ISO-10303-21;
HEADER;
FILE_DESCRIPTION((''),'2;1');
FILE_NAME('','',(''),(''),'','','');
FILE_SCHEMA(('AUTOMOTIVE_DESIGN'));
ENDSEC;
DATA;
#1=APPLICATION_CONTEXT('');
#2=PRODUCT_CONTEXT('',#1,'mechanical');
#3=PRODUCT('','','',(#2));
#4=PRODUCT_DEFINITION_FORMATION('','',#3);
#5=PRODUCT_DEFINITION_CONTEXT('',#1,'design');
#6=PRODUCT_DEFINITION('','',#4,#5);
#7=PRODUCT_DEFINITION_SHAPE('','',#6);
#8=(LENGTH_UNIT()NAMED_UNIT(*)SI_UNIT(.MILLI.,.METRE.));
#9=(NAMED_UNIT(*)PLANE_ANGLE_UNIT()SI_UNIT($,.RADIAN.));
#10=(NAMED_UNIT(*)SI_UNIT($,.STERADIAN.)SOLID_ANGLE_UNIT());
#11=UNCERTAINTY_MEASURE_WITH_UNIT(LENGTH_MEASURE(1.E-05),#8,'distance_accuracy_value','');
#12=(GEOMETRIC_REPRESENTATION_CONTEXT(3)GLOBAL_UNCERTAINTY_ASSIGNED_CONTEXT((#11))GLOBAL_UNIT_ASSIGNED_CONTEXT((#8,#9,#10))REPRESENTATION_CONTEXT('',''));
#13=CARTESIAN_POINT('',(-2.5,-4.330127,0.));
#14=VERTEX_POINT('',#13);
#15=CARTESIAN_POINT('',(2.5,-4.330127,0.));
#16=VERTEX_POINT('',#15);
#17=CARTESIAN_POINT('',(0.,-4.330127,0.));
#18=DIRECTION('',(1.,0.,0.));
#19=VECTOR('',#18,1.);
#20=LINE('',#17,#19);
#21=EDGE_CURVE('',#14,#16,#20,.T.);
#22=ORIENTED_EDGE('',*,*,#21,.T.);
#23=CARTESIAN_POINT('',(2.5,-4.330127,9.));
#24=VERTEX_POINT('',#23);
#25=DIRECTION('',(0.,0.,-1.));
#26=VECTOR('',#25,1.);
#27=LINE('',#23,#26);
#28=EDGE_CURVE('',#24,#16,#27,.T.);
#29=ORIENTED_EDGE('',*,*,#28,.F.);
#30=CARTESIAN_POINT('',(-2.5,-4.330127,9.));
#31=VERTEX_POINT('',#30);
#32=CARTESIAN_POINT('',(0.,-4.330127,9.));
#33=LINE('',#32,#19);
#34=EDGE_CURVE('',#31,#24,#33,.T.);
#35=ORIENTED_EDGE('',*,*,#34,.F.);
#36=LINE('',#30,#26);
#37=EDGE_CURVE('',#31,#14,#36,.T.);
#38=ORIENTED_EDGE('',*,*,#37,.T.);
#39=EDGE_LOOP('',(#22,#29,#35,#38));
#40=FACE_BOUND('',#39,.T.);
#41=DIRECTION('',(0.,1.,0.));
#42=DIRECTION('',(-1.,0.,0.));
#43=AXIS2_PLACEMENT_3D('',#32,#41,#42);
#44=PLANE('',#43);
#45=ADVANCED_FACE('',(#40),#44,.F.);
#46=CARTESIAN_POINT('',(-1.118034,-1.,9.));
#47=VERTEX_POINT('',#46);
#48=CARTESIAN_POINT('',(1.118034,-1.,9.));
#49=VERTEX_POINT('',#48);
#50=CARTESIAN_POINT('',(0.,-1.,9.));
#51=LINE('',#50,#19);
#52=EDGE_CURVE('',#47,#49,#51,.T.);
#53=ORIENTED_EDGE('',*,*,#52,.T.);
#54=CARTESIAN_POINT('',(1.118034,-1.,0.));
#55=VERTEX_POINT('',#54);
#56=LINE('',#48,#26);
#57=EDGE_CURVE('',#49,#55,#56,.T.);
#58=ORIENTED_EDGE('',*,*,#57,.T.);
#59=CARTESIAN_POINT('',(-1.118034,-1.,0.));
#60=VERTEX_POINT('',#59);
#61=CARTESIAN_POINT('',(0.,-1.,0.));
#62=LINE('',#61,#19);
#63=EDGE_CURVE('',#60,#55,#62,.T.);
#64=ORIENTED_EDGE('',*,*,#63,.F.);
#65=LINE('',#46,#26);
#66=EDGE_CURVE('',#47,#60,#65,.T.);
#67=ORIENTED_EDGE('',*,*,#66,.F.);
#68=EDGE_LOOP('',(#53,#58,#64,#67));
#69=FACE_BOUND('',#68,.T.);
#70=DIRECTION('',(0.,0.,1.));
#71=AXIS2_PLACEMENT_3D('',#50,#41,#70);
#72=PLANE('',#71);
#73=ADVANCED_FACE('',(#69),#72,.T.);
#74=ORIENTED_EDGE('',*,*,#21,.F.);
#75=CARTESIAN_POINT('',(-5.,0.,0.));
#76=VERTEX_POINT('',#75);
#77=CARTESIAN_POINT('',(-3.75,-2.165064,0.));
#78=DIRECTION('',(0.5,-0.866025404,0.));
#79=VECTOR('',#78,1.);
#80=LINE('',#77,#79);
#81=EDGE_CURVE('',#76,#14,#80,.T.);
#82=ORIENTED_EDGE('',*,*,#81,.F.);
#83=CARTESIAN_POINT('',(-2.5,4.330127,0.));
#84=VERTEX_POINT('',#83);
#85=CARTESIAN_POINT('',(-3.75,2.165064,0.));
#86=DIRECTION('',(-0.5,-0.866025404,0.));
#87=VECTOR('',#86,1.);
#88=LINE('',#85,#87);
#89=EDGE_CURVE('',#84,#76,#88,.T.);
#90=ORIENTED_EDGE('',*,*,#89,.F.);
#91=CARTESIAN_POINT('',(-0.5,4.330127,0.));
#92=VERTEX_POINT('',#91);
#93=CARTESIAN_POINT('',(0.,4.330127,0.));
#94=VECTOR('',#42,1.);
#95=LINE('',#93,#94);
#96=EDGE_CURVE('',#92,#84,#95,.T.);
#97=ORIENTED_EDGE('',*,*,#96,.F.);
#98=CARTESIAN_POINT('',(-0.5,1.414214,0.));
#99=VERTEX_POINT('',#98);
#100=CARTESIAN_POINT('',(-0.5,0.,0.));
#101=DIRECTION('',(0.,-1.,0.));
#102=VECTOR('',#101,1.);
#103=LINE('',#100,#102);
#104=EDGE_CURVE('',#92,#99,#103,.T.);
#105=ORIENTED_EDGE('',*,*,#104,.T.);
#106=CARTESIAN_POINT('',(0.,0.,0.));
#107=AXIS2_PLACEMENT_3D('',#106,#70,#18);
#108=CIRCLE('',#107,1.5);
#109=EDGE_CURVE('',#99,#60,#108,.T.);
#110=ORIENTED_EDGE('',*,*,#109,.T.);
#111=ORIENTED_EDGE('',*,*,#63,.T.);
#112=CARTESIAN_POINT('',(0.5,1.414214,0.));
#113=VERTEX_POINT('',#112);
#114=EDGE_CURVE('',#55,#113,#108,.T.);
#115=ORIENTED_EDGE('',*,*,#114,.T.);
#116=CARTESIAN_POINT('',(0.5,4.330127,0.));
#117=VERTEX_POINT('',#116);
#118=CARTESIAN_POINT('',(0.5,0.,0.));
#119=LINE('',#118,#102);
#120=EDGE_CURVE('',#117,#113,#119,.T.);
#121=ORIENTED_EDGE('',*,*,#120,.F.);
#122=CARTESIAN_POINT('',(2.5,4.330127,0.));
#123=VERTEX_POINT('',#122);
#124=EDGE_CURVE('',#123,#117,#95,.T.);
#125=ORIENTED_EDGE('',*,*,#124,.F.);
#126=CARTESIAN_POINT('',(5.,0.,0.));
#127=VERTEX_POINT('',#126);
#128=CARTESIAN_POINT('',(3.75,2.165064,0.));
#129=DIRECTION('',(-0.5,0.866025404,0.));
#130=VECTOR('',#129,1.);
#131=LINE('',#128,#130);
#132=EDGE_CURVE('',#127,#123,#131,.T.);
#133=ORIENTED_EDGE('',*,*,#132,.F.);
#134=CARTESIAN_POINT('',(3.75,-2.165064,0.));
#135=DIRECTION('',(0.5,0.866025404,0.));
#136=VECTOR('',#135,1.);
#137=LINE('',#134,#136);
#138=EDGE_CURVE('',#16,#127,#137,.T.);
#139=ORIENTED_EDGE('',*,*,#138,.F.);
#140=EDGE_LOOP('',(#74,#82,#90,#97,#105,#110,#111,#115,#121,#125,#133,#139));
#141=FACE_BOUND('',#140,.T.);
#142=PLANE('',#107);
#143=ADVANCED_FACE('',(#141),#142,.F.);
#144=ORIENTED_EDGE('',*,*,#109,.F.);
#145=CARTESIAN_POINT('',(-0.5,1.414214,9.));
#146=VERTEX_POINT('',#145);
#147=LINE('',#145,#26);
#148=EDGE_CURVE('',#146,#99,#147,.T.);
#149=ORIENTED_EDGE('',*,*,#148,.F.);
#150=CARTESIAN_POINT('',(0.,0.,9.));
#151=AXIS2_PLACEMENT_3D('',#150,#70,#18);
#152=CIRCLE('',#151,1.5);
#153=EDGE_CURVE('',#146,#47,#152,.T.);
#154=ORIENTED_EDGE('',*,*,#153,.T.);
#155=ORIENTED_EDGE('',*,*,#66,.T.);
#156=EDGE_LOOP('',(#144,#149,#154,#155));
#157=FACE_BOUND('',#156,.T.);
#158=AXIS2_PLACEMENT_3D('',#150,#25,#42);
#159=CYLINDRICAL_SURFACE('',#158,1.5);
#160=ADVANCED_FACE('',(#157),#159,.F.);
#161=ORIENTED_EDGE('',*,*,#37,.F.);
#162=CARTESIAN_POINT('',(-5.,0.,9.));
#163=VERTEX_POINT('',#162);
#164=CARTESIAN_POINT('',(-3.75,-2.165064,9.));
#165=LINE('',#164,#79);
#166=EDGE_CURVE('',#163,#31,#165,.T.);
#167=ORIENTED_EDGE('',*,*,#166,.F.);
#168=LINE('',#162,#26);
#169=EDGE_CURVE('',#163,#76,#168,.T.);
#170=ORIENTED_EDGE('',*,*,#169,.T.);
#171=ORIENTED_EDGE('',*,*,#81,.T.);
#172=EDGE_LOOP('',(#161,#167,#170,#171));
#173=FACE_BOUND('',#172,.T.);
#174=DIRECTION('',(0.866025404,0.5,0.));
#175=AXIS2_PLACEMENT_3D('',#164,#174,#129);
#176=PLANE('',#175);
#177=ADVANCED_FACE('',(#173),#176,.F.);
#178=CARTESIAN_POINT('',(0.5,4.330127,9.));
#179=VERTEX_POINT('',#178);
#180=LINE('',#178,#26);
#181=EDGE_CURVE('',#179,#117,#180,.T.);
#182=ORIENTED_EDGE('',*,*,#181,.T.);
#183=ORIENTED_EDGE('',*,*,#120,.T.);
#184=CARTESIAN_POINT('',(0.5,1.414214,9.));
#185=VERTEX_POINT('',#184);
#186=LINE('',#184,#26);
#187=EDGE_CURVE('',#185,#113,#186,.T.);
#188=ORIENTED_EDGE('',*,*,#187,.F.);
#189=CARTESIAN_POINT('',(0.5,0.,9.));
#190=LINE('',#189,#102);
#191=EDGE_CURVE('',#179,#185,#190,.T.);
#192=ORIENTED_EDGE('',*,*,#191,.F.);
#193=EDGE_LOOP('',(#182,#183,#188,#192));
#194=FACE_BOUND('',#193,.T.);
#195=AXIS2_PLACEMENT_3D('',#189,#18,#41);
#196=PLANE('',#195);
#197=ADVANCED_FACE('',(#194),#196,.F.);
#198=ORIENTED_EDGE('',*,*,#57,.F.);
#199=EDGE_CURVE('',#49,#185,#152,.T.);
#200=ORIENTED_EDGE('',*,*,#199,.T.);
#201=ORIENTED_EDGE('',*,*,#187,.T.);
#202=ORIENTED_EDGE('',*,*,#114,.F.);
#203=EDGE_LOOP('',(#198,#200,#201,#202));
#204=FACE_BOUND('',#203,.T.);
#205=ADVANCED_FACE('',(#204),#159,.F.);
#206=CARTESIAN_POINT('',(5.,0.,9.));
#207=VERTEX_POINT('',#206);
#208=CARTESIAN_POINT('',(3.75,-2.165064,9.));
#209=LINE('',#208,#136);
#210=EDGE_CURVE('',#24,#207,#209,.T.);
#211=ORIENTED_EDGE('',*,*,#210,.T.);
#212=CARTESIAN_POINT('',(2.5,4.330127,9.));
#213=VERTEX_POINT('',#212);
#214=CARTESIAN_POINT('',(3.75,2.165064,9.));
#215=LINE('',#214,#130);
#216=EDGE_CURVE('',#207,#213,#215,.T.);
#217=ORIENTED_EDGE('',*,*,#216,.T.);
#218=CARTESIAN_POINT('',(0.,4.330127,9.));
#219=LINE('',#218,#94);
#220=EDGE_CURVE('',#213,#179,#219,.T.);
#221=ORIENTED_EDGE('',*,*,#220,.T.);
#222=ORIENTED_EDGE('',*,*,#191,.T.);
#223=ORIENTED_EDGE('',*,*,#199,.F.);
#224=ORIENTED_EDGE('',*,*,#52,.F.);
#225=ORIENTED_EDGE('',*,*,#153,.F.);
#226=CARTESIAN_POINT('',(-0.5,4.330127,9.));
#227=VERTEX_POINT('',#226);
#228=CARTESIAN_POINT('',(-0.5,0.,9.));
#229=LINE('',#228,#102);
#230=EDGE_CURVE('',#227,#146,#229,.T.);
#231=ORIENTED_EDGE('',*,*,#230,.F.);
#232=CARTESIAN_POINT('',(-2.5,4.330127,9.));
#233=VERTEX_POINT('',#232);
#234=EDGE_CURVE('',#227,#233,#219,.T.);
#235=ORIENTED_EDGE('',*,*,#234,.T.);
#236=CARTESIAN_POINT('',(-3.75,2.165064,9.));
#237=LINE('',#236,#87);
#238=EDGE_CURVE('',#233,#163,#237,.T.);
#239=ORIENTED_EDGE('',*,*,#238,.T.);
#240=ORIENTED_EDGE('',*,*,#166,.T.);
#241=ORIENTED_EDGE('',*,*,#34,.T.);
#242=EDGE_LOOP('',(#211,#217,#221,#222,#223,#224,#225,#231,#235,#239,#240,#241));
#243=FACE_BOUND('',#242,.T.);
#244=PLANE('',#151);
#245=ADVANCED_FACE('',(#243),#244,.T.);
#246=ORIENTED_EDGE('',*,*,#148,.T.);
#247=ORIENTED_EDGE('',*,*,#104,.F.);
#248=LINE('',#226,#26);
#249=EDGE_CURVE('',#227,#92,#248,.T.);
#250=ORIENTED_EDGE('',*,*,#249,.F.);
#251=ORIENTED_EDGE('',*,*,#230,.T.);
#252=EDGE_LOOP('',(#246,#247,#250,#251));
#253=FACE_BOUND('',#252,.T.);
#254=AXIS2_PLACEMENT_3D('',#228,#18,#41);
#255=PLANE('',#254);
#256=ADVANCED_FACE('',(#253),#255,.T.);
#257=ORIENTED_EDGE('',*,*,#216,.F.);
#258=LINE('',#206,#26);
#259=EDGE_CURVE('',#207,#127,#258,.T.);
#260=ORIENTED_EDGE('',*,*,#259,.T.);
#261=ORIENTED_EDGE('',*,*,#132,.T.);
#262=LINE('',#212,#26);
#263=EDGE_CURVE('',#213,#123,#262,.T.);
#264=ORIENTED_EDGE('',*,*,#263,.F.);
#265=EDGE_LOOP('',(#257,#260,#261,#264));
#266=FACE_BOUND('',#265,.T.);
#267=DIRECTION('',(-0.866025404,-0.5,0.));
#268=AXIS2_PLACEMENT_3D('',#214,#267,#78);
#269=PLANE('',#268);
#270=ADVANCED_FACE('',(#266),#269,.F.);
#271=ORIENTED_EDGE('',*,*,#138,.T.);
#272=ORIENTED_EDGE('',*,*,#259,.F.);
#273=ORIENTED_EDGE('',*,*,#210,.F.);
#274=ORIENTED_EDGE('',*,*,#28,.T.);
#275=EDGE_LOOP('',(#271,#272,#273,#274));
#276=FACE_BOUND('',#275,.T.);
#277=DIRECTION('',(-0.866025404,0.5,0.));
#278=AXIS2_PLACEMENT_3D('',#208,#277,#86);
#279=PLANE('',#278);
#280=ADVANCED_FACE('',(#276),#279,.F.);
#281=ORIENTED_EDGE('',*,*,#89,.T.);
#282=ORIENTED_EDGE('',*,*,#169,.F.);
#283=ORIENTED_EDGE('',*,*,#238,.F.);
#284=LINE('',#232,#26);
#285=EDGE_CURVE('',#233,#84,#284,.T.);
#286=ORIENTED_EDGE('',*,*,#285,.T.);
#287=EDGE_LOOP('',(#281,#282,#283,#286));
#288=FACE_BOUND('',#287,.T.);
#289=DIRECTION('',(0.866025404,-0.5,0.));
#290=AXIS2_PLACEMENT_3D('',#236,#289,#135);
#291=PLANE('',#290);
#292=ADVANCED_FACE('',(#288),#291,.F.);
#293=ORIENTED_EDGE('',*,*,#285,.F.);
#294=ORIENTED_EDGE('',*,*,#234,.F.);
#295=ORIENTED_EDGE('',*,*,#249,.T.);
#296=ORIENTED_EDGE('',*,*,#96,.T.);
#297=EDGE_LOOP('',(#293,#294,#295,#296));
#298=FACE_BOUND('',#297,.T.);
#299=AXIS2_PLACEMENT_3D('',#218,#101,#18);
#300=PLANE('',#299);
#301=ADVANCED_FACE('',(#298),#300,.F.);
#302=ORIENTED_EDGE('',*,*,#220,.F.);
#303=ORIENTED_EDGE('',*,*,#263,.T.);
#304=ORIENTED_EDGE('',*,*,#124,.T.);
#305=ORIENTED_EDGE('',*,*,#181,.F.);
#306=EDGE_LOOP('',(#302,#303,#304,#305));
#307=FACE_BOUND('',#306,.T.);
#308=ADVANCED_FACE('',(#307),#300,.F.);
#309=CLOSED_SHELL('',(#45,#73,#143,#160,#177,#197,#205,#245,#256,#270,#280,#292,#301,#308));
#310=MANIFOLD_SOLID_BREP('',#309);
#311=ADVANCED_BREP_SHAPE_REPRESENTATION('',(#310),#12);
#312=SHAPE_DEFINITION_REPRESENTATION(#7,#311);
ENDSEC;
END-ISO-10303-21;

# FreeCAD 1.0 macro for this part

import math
import FreeCAD as App
import Part
import Sketcher
Q = App.Units.Quantity

doc = App.newDocument("Part")
body = doc.addObject("PartDesign::Body", "Body")

sketch1 = body.newObject("Sketcher::SketchObject", "Sketch")
sketch1.AttachmentSupport = (doc.getObject("XY_Plane"), [""])
sketch1.MapMode = "FlatFace"
sketch1.addGeometry(Part.LineSegment(App.Vector(1.1, -1, 0), App.Vector(-1.1, -1, 0)), False)
sketch1.addGeometry(Part.ArcOfCircle(Part.Circle(App.Vector(0, 0, 0), App.Vector(0, 0, 1), 1.5), math.radians(109), math.radians(222)), False)
sketch1.addGeometry(Part.LineSegment(App.Vector(-0.5, 1.4, 0), App.Vector(-0.5, 4.3, 0)), False)
sketch1.addGeometry(Part.LineSegment(App.Vector(-0.5, 4.3, 0), App.Vector(-2.5, 4.3, 0)), False)
sketch1.addGeometry(Part.LineSegment(App.Vector(-2.5, 4.3, 0), App.Vector(-5, 0, 0)), False)
sketch1.addGeometry(Part.LineSegment(App.Vector(-5, 0, 0), App.Vector(-2.5, -4.3, 0)), False)
sketch1.addGeometry(Part.LineSegment(App.Vector(-2.5, -4.3, 0), App.Vector(2.5, -4.3, 0)), False)
sketch1.addGeometry(Part.LineSegment(App.Vector(2.5, -4.3, 0), App.Vector(5, 0, 0)), False)
sketch1.addGeometry(Part.LineSegment(App.Vector(5, 0, 0), App.Vector(2.5, 4.3, 0)), False)
sketch1.addGeometry(Part.LineSegment(App.Vector(2.5, 4.3, 0), App.Vector(0.5, 4.3, 0)), False)
sketch1.addGeometry(Part.LineSegment(App.Vector(0.5, 4.3, 0), App.Vector(0.5, 1.4, 0)), False)
sketch1.addGeometry(Part.ArcOfCircle(Part.Circle(App.Vector(0, 0, 0), App.Vector(0, 0, 1), 1.5), math.radians(-42), math.radians(71)), False)
sketch1.addConstraint(Sketcher.Constraint("Coincident", 0, 2, 1, 2))
sketch1.addConstraint(Sketcher.Constraint("Coincident", 1, 1, 2, 1))
sketch1.addConstraint(Sketcher.Constraint("Coincident", 2, 2, 3, 1))
sketch1.addConstraint(Sketcher.Constraint("Coincident", 3, 2, 4, 1))
sketch1.addConstraint(Sketcher.Constraint("Coincident", 4, 2, 5, 1))
sketch1.addConstraint(Sketcher.Constraint("Coincident", 5, 2, 6, 1))
sketch1.addConstraint(Sketcher.Constraint("Coincident", 6, 2, 7, 1))
sketch1.addConstraint(Sketcher.Constraint("Coincident", 7, 2, 8, 1))
sketch1.addConstraint(Sketcher.Constraint("Coincident", 8, 2, 9, 1))
sketch1.addConstraint(Sketcher.Constraint("Coincident", 9, 2, 10, 1))
sketch1.addConstraint(Sketcher.Constraint("Coincident", 10, 2, 11, 2))
sketch1.addConstraint(Sketcher.Constraint("Coincident", 11, 1, 0, 1))
sketch1.addConstraint(Sketcher.Constraint("Horizontal", 0))
sketch1.addConstraint(Sketcher.Constraint("Vertical", 2))
sketch1.addConstraint(Sketcher.Constraint("Horizontal", 3))
sketch1.addConstraint(Sketcher.Constraint("Horizontal", 6))
sketch1.addConstraint(Sketcher.Constraint("Horizontal", 9))
sketch1.addConstraint(Sketcher.Constraint("Vertical", 10))
sketch1.addConstraint(Sketcher.Constraint("Coincident", 1, 3, -1, 1))
sketch1.addConstraint(Sketcher.Constraint("Coincident", 11, 3, -1, 1))
sketch1.addConstraint(Sketcher.Constraint("Equal", 1, 11))
sketch1.addConstraint(Sketcher.Constraint("Symmetric", 3, 2, 6, 2, -1, 1))
sketch1.addConstraint(Sketcher.Constraint("Symmetric", 4, 2, 7, 2, -1, 1))
sketch1.addConstraint(Sketcher.Constraint("Symmetric", 5, 2, 8, 2, -1, 1))
sketch1.addConstraint(Sketcher.Constraint("PointOnObject", 4, 2, -1))
sketch1.addConstraint(Sketcher.Constraint("Horizontal", 1, 1, 10, 2))
sketch1.addConstraint(Sketcher.Constraint("Vertical", 3, 2, 5, 2))
sketch1.addConstraint(Sketcher.Constraint("Radius", 1, 1.5))
sketch1.addConstraint(Sketcher.Constraint("DistanceX", 3, 2, 3, 1, 2.0))
sketch1.addConstraint(Sketcher.Constraint("DistanceX", 6, 1, 6, 2, 5.0))
sketch1.addConstraint(Sketcher.Constraint("Angle", 4, Q("-120 deg")))
sketch1.addConstraint(Sketcher.Constraint("Distance", 4, 5.0))
sketch1.addConstraint(Sketcher.Constraint("DistanceY", 0, 2, -1, 1, 1.0))
pad1 = body.newObject("PartDesign::Pad", "Pad")
pad1.Profile = sketch1
pad1.Length = 9

doc.recompute()
